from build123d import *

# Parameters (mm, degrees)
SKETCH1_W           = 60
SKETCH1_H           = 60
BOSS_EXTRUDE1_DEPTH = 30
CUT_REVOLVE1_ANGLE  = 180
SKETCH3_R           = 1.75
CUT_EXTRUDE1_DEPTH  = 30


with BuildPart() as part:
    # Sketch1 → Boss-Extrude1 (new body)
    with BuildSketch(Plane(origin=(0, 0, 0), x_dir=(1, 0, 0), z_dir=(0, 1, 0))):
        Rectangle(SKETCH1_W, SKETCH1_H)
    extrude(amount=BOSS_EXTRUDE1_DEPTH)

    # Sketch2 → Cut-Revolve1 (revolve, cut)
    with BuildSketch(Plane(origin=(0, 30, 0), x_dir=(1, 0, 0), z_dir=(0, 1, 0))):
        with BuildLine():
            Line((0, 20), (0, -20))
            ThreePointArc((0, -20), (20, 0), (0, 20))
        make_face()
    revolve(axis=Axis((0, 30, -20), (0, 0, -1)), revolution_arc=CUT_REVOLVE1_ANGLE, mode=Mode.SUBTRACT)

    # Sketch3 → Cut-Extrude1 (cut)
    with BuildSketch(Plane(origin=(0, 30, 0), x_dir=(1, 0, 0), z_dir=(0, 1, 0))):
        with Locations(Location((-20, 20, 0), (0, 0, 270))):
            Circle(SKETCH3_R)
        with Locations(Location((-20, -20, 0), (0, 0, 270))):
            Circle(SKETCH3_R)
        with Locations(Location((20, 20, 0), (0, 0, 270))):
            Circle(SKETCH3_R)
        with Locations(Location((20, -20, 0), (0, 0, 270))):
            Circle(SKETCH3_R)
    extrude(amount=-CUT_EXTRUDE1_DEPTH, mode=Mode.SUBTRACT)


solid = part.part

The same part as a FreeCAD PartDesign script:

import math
import FreeCAD as App
import Part
import Sketcher

V = App.Vector


def add_polygon(sketch, points):
    """Adds a closed chain of lines whose ends are joined by coincident constraints."""
    first, n = sketch.GeometryCount, len(points)
    for a, b in zip(points, points[1:] + points[:1]):
        sketch.addGeometry(Part.LineSegment(App.Vector(*a, 0), App.Vector(*b, 0)), False)
    for i in range(n):
        sketch.addConstraint(Sketcher.Constraint("Coincident", first + i, 2, first + (i + 1) % n, 1))

doc = App.newDocument("Part")
params = doc.addObject("Spreadsheet::Sheet", "Params")
for row, (alias, value) in enumerate([
    ("sketch1_width", "60 mm"),
    ("pad1_length", "30 mm"),
    ("sketch2_radius", "20 mm"),
    ("groove_angle", "180 deg"),
    ("sketch3_diameter", "3.5 mm"),
    ("pocket1_length", "30 mm"),
], start=1):
    params.set(f"A{row}", alias)
    params.set(f"B{row}", "=" + value)
    params.setAlias(f"B{row}", alias)

body = doc.addObject("PartDesign::Body", "Body")

sketch1 = body.newObject("Sketcher::SketchObject", "Sketch")
sketch1.AttachmentSupport = (doc.getObject("XZ_Plane"), [""])
sketch1.MapMode = "FlatFace"
add_polygon(sketch1, [(-30, -30), (-30, 30), (30, 30), (30, -30)])
sketch1.addConstraint([
    Sketcher.Constraint("Vertical", 0),
    Sketcher.Constraint("Horizontal", 1),
    Sketcher.Constraint("Vertical", 2),
    Sketcher.Constraint("Horizontal", 3),
    Sketcher.Constraint("Symmetric", 0, 2, 2, 2, -1, 1),
    Sketcher.Constraint("Equal", 3, 0),
    Sketcher.Constraint("DistanceX", 1, 1, 1, 2, 60.0),
])
sketch1.setExpression("Constraints[10]", "Params.sketch1_width")
pad1 = body.newObject("PartDesign::Pad", "Pad")
pad1.Profile = sketch1
pad1.setExpression("Length", "Params.pad1_length")
pad1.Reversed = True

sketch2 = body.newObject("Sketcher::SketchObject", "Sketch001")
sketch2.AttachmentSupport = (doc.getObject("XZ_Plane"), [""])
sketch2.MapMode = "FlatFace"
sketch2.AttachmentOffset = App.Placement(V(0, 0, -30), App.Rotation())
sketch2.addGeometry([
    Part.LineSegment(V(0, -20, 0), V(0, 20, 0)),
    Part.ArcOfCircle(Part.Circle(V(0, 0, 0), V(0, 0, 1), 20), math.radians(-90), math.radians(90)),
], False)
sketch2.addConstraint([
    Sketcher.Constraint("Coincident", 0, 1, 1, 1),
    Sketcher.Constraint("Coincident", 1, 2, 0, 2),
    Sketcher.Constraint("Vertical", 0),
    Sketcher.Constraint("Coincident", 1, 3, -1, 1),
    Sketcher.Constraint("PointOnObject", 0, 1, -2),
    Sketcher.Constraint("Radius", 1, 20.0),
])
sketch2.setExpression("Constraints[5]", "Params.sketch2_radius")
groove = body.newObject("PartDesign::Groove", "Groove")
groove.Profile = sketch2
groove.ReferenceAxis = (sketch2, ["V_Axis"])
groove.setExpression("Angle", "Params.groove_angle")
groove.Reversed = True

sketch3 = body.newObject("Sketcher::SketchObject", "Sketch002")
sketch3.AttachmentSupport = (doc.getObject("XZ_Plane"), [""])
sketch3.MapMode = "FlatFace"
sketch3.AttachmentOffset = App.Placement(V(0, 0, -30), App.Rotation())
sketch3.addGeometry([
    Part.Circle(V(-20, -20, 0), V(0, 0, 1), 1.8),
    Part.Circle(V(-20, 20, 0), V(0, 0, 1), 1.8),
    Part.Circle(V(20, -20, 0), V(0, 0, 1), 1.8),
    Part.Circle(V(20, 20, 0), V(0, 0, 1), 1.8),
], False)
sketch3.addConstraint([
    Sketcher.Constraint("Equal", 0, 1),
    Sketcher.Constraint("Equal", 1, 2),
    Sketcher.Constraint("Equal", 2, 3),
    Sketcher.Constraint("Symmetric", 1, 3, 2, 3, -1, 1),
    Sketcher.Constraint("Symmetric", 0, 3, 3, 3, -1, 1),
    Sketcher.Constraint("Symmetric", 0, 3, 2, 3, -2),
    Sketcher.Constraint("Diameter", 0, 3.5),
    Sketcher.Constraint("DistanceX", 0, 3, -1, 1, 20.0),
    Sketcher.Constraint("DistanceY", 0, 3, -1, 1, 20.0),
])
sketch3.setExpression("Constraints[6]", "Params.sketch3_diameter")
pocket1 = body.newObject("PartDesign::Pocket", "Pocket")
pocket1.Profile = sketch3
pocket1.setExpression("Length", "Params.pocket1_length")
pocket1.Reversed = True

doc.recompute()
